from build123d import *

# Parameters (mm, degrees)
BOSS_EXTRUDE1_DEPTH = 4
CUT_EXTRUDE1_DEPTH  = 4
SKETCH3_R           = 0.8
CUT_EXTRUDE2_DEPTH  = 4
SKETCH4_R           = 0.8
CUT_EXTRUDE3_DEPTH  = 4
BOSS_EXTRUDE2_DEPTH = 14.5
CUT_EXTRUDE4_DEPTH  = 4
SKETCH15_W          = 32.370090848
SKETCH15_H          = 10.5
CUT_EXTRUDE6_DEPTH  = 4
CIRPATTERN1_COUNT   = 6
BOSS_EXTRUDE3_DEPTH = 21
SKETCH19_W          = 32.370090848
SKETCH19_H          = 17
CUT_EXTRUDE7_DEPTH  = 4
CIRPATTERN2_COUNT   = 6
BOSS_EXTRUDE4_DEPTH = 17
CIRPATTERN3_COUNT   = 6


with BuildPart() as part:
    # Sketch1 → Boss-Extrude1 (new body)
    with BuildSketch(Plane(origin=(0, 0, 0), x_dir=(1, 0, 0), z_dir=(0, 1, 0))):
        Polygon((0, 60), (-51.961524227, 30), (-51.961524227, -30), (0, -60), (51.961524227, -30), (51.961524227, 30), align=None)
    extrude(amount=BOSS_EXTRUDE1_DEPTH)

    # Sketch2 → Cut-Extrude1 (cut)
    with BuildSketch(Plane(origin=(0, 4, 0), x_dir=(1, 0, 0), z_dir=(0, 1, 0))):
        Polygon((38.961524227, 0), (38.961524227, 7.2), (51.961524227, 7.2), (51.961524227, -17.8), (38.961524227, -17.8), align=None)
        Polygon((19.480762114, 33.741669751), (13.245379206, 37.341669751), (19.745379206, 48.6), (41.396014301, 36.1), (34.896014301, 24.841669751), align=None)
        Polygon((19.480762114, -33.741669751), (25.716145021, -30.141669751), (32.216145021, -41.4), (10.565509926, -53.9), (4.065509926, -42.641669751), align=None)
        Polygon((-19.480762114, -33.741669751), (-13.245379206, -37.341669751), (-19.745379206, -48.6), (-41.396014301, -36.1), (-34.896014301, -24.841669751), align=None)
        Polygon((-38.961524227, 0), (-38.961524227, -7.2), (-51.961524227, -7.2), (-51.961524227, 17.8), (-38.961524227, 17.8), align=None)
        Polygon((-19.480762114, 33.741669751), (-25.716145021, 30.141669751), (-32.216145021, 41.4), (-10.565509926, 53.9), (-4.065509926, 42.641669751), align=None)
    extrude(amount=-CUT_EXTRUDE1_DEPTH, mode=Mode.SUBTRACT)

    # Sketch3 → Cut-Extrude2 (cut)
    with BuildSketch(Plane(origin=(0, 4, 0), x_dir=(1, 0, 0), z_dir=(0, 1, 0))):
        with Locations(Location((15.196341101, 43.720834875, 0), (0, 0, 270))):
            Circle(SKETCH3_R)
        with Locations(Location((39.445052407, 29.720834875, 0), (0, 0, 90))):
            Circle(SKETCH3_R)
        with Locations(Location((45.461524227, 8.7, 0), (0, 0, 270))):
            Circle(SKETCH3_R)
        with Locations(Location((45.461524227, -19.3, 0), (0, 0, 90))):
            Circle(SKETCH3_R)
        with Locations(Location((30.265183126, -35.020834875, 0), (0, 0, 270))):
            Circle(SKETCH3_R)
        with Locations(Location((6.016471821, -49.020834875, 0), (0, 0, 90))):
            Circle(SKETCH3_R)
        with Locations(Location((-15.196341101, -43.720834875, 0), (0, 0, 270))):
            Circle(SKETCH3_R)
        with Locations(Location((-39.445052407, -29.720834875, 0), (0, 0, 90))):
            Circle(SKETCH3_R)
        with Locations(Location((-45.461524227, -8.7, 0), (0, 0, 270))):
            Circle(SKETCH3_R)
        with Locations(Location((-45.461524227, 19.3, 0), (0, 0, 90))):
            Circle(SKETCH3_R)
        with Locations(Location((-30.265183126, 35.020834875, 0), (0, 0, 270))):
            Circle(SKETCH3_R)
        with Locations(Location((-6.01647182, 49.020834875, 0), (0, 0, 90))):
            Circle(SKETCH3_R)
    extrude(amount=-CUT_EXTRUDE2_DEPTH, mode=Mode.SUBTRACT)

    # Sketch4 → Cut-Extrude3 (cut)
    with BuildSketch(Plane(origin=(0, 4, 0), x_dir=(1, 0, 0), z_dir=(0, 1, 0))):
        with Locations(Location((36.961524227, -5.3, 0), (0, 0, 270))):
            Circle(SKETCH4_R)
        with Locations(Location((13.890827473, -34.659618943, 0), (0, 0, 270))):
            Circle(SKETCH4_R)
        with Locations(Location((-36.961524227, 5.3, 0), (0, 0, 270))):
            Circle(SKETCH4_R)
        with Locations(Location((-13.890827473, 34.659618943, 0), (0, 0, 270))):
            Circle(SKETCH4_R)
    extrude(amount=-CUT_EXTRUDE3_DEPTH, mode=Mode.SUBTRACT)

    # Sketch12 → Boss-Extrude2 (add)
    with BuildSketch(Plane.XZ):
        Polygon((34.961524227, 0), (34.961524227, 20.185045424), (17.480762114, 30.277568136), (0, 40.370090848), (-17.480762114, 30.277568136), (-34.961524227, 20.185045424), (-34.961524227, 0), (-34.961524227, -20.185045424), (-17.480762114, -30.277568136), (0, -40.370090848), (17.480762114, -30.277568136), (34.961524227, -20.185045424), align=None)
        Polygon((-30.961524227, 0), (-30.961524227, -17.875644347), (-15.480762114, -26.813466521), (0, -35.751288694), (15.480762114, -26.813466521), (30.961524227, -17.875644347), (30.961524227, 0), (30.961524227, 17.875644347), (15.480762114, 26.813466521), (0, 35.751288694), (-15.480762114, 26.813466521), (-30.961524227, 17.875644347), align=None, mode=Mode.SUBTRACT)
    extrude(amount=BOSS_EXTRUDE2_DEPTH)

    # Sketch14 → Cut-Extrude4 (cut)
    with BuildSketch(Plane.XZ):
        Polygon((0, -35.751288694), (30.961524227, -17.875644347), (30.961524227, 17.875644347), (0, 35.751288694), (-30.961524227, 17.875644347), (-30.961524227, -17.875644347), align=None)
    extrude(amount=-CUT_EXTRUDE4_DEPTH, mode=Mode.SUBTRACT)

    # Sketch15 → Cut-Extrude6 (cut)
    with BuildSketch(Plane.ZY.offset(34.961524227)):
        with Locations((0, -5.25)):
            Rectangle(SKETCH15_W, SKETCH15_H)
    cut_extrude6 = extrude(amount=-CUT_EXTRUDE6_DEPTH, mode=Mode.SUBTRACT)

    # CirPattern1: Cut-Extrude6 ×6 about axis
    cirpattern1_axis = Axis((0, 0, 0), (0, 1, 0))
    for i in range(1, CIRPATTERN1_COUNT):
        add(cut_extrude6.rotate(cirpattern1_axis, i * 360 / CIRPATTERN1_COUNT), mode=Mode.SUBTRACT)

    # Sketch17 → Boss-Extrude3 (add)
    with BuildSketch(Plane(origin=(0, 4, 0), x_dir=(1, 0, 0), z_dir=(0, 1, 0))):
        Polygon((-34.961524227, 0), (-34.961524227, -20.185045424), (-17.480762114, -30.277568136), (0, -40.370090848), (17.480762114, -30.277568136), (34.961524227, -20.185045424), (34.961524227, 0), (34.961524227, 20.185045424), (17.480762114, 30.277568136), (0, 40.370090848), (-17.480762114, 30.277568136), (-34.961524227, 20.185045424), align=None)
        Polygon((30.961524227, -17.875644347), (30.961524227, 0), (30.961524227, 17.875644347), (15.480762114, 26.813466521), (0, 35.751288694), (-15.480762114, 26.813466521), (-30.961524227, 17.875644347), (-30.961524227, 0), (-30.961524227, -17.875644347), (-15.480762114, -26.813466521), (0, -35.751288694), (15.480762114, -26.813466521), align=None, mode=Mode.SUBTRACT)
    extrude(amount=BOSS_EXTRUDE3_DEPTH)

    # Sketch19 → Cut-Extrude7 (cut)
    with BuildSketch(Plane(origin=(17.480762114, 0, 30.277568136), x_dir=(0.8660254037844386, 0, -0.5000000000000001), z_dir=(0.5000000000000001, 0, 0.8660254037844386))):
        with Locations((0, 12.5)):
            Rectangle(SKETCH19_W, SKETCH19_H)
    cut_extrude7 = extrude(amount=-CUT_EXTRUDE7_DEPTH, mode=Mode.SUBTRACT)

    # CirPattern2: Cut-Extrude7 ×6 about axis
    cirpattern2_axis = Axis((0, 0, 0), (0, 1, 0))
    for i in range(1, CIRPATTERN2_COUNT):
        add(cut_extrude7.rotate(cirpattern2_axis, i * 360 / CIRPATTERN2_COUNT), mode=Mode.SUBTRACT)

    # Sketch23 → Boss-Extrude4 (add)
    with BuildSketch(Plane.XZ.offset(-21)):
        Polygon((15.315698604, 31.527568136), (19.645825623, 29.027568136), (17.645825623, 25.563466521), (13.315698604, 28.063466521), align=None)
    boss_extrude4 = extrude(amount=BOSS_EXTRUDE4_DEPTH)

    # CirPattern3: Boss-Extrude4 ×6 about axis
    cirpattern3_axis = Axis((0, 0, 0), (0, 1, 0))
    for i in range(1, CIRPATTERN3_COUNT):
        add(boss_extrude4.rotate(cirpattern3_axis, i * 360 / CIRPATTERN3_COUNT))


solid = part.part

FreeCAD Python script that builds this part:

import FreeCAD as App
import Part
import Sketcher

V = App.Vector
Q = App.Units.Quantity


def add_polygon(sketch, points):
    """Adds a closed chain of lines whose ends are joined by coincident constraints."""
    first, n = sketch.GeometryCount, len(points)
    for a, b in zip(points, points[1:] + points[:1]):
        sketch.addGeometry(Part.LineSegment(App.Vector(*a, 0), App.Vector(*b, 0)), False)
    for i in range(n):
        sketch.addConstraint(Sketcher.Constraint("Coincident", first + i, 2, first + (i + 1) % n, 1))

doc = App.newDocument("Part")
body = doc.addObject("PartDesign::Body", "Body")

# Sketch on XZ plane
sketch1 = body.newObject("Sketcher::SketchObject", "Sketch")
sketch1.AttachmentSupport = (doc.getObject("XZ_Plane"), [""])
sketch1.MapMode = "FlatFace"
add_polygon(sketch1, [(0, -60), (-52, -30), (-52, 30), (0, 60), (52, 30), (52, -30)])  # lines 0-5
sketch1.addConstraint([
    Sketcher.Constraint("Vertical", 1),
    Sketcher.Constraint("Vertical", 4),
    Sketcher.Constraint("Symmetric", 0, 2, 3, 2, -1, 1),
    Sketcher.Constraint("Symmetric", 2, 2, 5, 2, -1, 1),
    Sketcher.Constraint("PointOnObject", 2, 2, -2),
    Sketcher.Constraint("Parallel", 2, 5),
    Sketcher.Constraint("Horizontal", 1, 2, 3, 2),
    Sketcher.Constraint("DistanceY", 1, 1, 1, 2, Q("60 mm")),
    Sketcher.Constraint("Angle", 0, Q("150 deg")),
    Sketcher.Constraint("Distance", 0, Q("60 mm")),
])
pad1 = body.newObject("PartDesign::Pad", "Pad")
pad1.Profile = sketch1
pad1.Length = 4
pad1.Reversed = True

# Sketch on XZ plane
sketch2 = body.newObject("Sketcher::SketchObject", "Sketch001")
sketch2.AttachmentSupport = (doc.getObject("XZ_Plane"), [""])
sketch2.MapMode = "FlatFace"
sketch2.AttachmentOffset = App.Placement(V(0, 0, -4), App.Rotation())
add_polygon(sketch2, [(39, -7), (39, 18), (52, 18), (52, -7)])  # lines 0-3
add_polygon(sketch2, [(13, -37), (19, -34), (35, -25), (41, -36), (20, -49)])  # lines 4-8
add_polygon(sketch2, [(26, 30), (19, 34), (4, 43), (11, 54), (32, 41)])  # lines 9-13
add_polygon(sketch2, [(-13, 37), (-19, 34), (-35, 25), (-41, 36), (-20, 49)])  # lines 14-18
add_polygon(sketch2, [(-39, 7), (-39, -18), (-52, -18), (-52, 7)])  # lines 19-22
add_polygon(sketch2, [(-26, -30), (-19, -34), (-4, -43), (-11, -54), (-32, -41)])  # lines 23-27
sketch2.addConstraint([
    Sketcher.Constraint("Vertical", 0),
    Sketcher.Constraint("Horizontal", 1),
    Sketcher.Constraint("Vertical", 2),
    Sketcher.Constraint("Horizontal", 3),
    Sketcher.Constraint("Vertical", 19),
    Sketcher.Constraint("Horizontal", 20),
    Sketcher.Constraint("Vertical", 21),
    Sketcher.Constraint("Horizontal", 22),
    Sketcher.Constraint("Symmetric", 4, 2, 14, 2, -1, 1),
    Sketcher.Constraint("Symmetric", 5, 2, 15, 2, -1, 1),
    Sketcher.Constraint("Symmetric", 6, 2, 16, 2, -1, 1),
    Sketcher.Constraint("Symmetric", 7, 2, 17, 2, -1, 1),
    Sketcher.Constraint("Symmetric", 8, 2, 18, 2, -1, 1),
    Sketcher.Constraint("Symmetric", 0, 2, 19, 2, -1, 1),
    Sketcher.Constraint("Symmetric", 2, 2, 21, 2, -1, 1),
    Sketcher.Constraint("Symmetric", 9, 2, 23, 2, -1, 1),
    Sketcher.Constraint("Symmetric", 10, 2, 24, 2, -1, 1),
    Sketcher.Constraint("Symmetric", 11, 2, 25, 2, -1, 1),
    Sketcher.Constraint("Symmetric", 12, 2, 26, 2, -1, 1),
    Sketcher.Constraint("Symmetric", 13, 2, 27, 2, -1, 1),
    Sketcher.Constraint("Symmetric", 9, 2, 14, 2, -2),
    Sketcher.Constraint("Parallel", 4, 5),
    Sketcher.Constraint("Perpendicular", 5, 6),
    Sketcher.Constraint("Perpendicular", 6, 7),
    Sketcher.Constraint("Perpendicular", 7, 8),
    Sketcher.Constraint("Parallel", 9, 10),
    Sketcher.Constraint("Perpendicular", 10, 11),
    Sketcher.Constraint("Perpendicular", 11, 12),
    Sketcher.Constraint("Perpendicular", 12, 13),
    Sketcher.Constraint("Equal", 4, 9),
    Sketcher.Constraint("Equal", 5, 10),
    Sketcher.Constraint("Equal", 8, 11),
    Sketcher.Constraint("DistanceX", 1, 1, 1, 2, Q("13 mm")),
    Sketcher.Constraint("DistanceY", 0, 1, 0, 2, Q("25 mm")),
    Sketcher.Constraint("Angle", 4, Q("30 deg")),
    Sketcher.Constraint("Angle", 9, Q("150 deg")),
    Sketcher.Constraint("Distance", 6, Q("13 mm")),
    Sketcher.Constraint("Distance", 7, Q("25 mm")),
    Sketcher.Constraint("Distance", 4, Q("7.2 mm")),
    Sketcher.Constraint("DistanceY", -1, 1, 0, 2, Q("17.8 mm")),
    Sketcher.Constraint("DistanceY", 6, 2, -1, 1, Q("36.1 mm")),
    Sketcher.Constraint("DistanceX", -1, 1, 7, 2, Q("19.745379 mm")),
    Sketcher.Constraint("DistanceX", 5, 2, 3, 2, Q("4.06551 mm")),
])
pocket1 = body.newObject("PartDesign::Pocket", "Pocket")
pocket1.Profile = sketch2
pocket1.Length = 4
pocket1.Reversed = True

# Sketch on XZ plane
sketch3 = body.newObject("Sketcher::SketchObject", "Sketch002")
sketch3.AttachmentSupport = (doc.getObject("XZ_Plane"), [""])
sketch3.MapMode = "FlatFace"
sketch3.AttachmentOffset = App.Placement(V(0, 0, -4), App.Rotation())
sketch3.addGeometry([
    Part.Circle(V(15.2, -43.7, 0), V(0, 0, 1), 0.8),  # 0
    Part.Circle(V(39.4, -29.7, 0), V(0, 0, 1), 0.8),  # 1
    Part.Circle(V(45.5, -8.7, 0), V(0, 0, 1), 0.8),  # 2
    Part.Circle(V(45.5, 19.3, 0), V(0, 0, 1), 0.8),  # 3
    Part.Circle(V(30.3, 35, 0), V(0, 0, 1), 0.8),  # 4
    Part.Circle(V(6, 49, 0), V(0, 0, 1), 0.8),  # 5
    Part.Circle(V(-15.2, 43.7, 0), V(0, 0, 1), 0.8),  # 6
    Part.Circle(V(-39.4, 29.7, 0), V(0, 0, 1), 0.8),  # 7
    Part.Circle(V(-45.5, 8.7, 0), V(0, 0, 1), 0.8),  # 8
    Part.Circle(V(-45.5, -19.3, 0), V(0, 0, 1), 0.8),  # 9
    Part.Circle(V(-30.3, -35, 0), V(0, 0, 1), 0.8),  # 10
    Part.Circle(V(-6, -49, 0), V(0, 0, 1), 0.8),  # 11
], False)
sketch3.addConstraint([
    Sketcher.Constraint("Equal", 0, 1),
    Sketcher.Constraint("Equal", 1, 2),
    Sketcher.Constraint("Equal", 2, 3),
    Sketcher.Constraint("Equal", 3, 4),
    Sketcher.Constraint("Equal", 4, 5),
    Sketcher.Constraint("Equal", 5, 6),
    Sketcher.Constraint("Equal", 6, 7),
    Sketcher.Constraint("Equal", 7, 8),
    Sketcher.Constraint("Equal", 8, 9),
    Sketcher.Constraint("Equal", 9, 10),
    Sketcher.Constraint("Equal", 10, 11),
    Sketcher.Constraint("Symmetric", 0, 3, 6, 3, -1, 1),
    Sketcher.Constraint("Symmetric", 1, 3, 7, 3, -1, 1),
    Sketcher.Constraint("Symmetric", 2, 3, 8, 3, -1, 1),
    Sketcher.Constraint("Symmetric", 3, 3, 9, 3, -1, 1),
    Sketcher.Constraint("Symmetric", 4, 3, 10, 3, -1, 1),
    Sketcher.Constraint("Symmetric", 5, 3, 11, 3, -1, 1),
    Sketcher.Constraint("Vertical", 2, 3, 3, 3),
    Sketcher.Constraint("Diameter", 0, Q("1.6 mm")),
    Sketcher.Constraint("DistanceY", 0, 3, 1, 3, Q("14 mm")),
    Sketcher.Constraint("DistanceY", 2, 3, 3, 3, Q("28 mm")),
    Sketcher.Constraint("DistanceY", 4, 3, 5, 3, Q("14 mm")),
    Sketcher.Constraint("DistanceY", 2, 3, -1, 1, Q("8.7 mm")),
    Sketcher.Constraint("DistanceY", 6, 3, 5, 3, Q("5.3 mm")),
    Sketcher.Constraint("DistanceX", -1, 1, 0, 3, Q("15.196341 mm")),
    Sketcher.Constraint("DistanceX", -1, 1, 5, 3, Q("6.016472 mm")),
    Sketcher.Constraint("DistanceX", 0, 3, 1, 3, Q("24.248711 mm")),
    Sketcher.Constraint("DistanceX", 1, 3, 2, 3, Q("6.016472 mm")),
    Sketcher.Constraint("DistanceX", 4, 3, 3, 3, Q("15.196341 mm")),
    Sketcher.Constraint("DistanceY", 1, 3, 4, 3, Q("64.74167 mm")),
])
pocket2 = body.newObject("PartDesign::Pocket", "Pocket001")
pocket2.Profile = sketch3
pocket2.Length = 4
pocket2.Reversed = True

# Sketch on XZ plane
sketch4 = body.newObject("Sketcher::SketchObject", "Sketch003")
sketch4.AttachmentSupport = (doc.getObject("XZ_Plane"), [""])
sketch4.MapMode = "FlatFace"
sketch4.AttachmentOffset = App.Placement(V(0, 0, -4), App.Rotation())
sketch4.addGeometry([
    Part.Circle(V(37, 5.3, 0), V(0, 0, 1), 0.8),
    Part.Circle(V(13.9, 34.7, 0), V(0, 0, 1), 0.8),
    Part.Circle(V(-37, -5.3, 0), V(0, 0, 1), 0.8),
    Part.Circle(V(-13.9, -34.7, 0), V(0, 0, 1), 0.8),
], False)
sketch4.addConstraint([
    Sketcher.Constraint("Equal", 0, 1),
    Sketcher.Constraint("Equal", 1, 2),
    Sketcher.Constraint("Equal", 2, 3),
    Sketcher.Constraint("Symmetric", 0, 3, 2, 3, -1, 1),
    Sketcher.Constraint("Symmetric", 1, 3, 3, 3, -1, 1),
    Sketcher.Constraint("Diameter", 0, Q("1.6 mm")),
    Sketcher.Constraint("DistanceY", -1, 1, 0, 3, Q("5.3 mm")),
    Sketcher.Constraint("DistanceY", -1, 1, 1, 3, Q("34.659619 mm")),
    Sketcher.Constraint("DistanceX", 2, 3, 1, 3, Q("50.852352 mm")),
    Sketcher.Constraint("DistanceX", 2, 3, 0, 3, Q("73.923048 mm")),
])
pocket3 = body.newObject("PartDesign::Pocket", "Pocket002")
pocket3.Profile = sketch4
pocket3.Length = 4
pocket3.Reversed = True

# Sketch on XZ plane
sketch5 = body.newObject("Sketcher::SketchObject", "Sketch004")
sketch5.AttachmentSupport = (doc.getObject("XZ_Plane"), [""])
sketch5.MapMode = "FlatFace"
add_polygon(sketch5, [(35, 20), (17, 30), (0, 40), (-17, 30), (-35, 20), (-35, -20), (-17, -30), (0, -40), (17, -30), (35, -20)])  # lines 0-9
add_polygon(sketch5, [(-31, -18), (-31, 18), (-15, 27), (0, 36), (15, 27), (31, 18), (31, -18), (15, -27), (0, -36), (-15, -27)])  # lines 10-19
sketch5.addConstraint([
    Sketcher.Constraint("Vertical", 4),
    Sketcher.Constraint("Vertical", 9),
    Sketcher.Constraint("Vertical", 10),
    Sketcher.Constraint("Vertical", 15),
    Sketcher.Constraint("Symmetric", 0, 2, 5, 2, -1, 1),
    Sketcher.Constraint("Symmetric", 1, 2, 6, 2, -1, 1),
    Sketcher.Constraint("Symmetric", 2, 2, 7, 2, -1, 1),
    Sketcher.Constraint("Symmetric", 3, 2, 8, 2, -1, 1),
    Sketcher.Constraint("Symmetric", 10, 2, 15, 2, -1, 1),
    Sketcher.Constraint("Symmetric", 11, 2, 16, 2, -1, 1),
    Sketcher.Constraint("Symmetric", 12, 2, 17, 2, -1, 1),
    Sketcher.Constraint("Symmetric", 13, 2, 18, 2, -1, 1),
    Sketcher.Constraint("Symmetric", 0, 2, 2, 2, -2),
    Sketcher.Constraint("Symmetric", 11, 2, 13, 2, -2),
    Sketcher.Constraint("PointOnObject", 1, 2, -2),
    Sketcher.Constraint("PointOnObject", 12, 2, -2),
    Sketcher.Constraint("Parallel", 0, 1),
    Sketcher.Constraint("Parallel", 2, 3),
    Sketcher.Constraint("Parallel", 1, 5),
    Sketcher.Constraint("Parallel", 8, 11),
    Sketcher.Constraint("Parallel", 11, 12),
    Sketcher.Constraint("Parallel", 13, 14),
    Sketcher.Constraint("Parallel", 18, 19),
    Sketcher.Constraint("Equal", 0, 1),
    Sketcher.Constraint("Equal", 11, 12),
    Sketcher.Constraint("Angle", 0, Q("150 deg")),
    Sketcher.Constraint("DistanceX", 3, 2, 10, 2, Q("4 mm")),
    Sketcher.Constraint("DistanceY", 4, 2, 4, 1, Q("40.370091 mm")),
    Sketcher.Constraint("DistanceY", 10, 1, 10, 2, Q("35.751289 mm")),
    Sketcher.Constraint("DistanceY", -1, 1, 0, 2, Q("30.277568 mm")),
])
pad2 = body.newObject("PartDesign::Pad", "Pad001")
pad2.Profile = sketch5
pad2.Length = 14.5

# Sketch on XZ plane
sketch6 = body.newObject("Sketcher::SketchObject", "Sketch005")
sketch6.AttachmentSupport = (doc.getObject("XZ_Plane"), [""])
sketch6.MapMode = "FlatFace"
add_polygon(sketch6, [(0, -36), (31, -18), (31, 18), (0, 36), (-31, 18), (-31, -18)])  # lines 0-5
sketch6.addConstraint([
    Sketcher.Constraint("Vertical", 1),
    Sketcher.Constraint("Vertical", 4),
    Sketcher.Constraint("Symmetric", 0, 2, 3, 2, -1, 1),
    Sketcher.Constraint("Symmetric", 2, 2, 5, 2, -1, 1),
    Sketcher.Constraint("PointOnObject", 2, 2, -2),
    Sketcher.Constraint("Parallel", 2, 5),
    Sketcher.Constraint("Horizontal", 1, 2, 3, 2),
    Sketcher.Constraint("Angle", 0, Q("30 deg")),
    Sketcher.Constraint("DistanceY", 1, 1, 1, 2, Q("35.751289 mm")),
    Sketcher.Constraint("Distance", 0, Q("35.751289 mm")),
])
pocket4 = body.newObject("PartDesign::Pocket", "Pocket003")
pocket4.Profile = sketch6
pocket4.Length = 4

# Sketch on YZ plane
sketch7 = body.newObject("Sketcher::SketchObject", "Sketch006")
sketch7.AttachmentSupport = (doc.getObject("YZ_Plane"), [""])
sketch7.MapMode = "FlatFace"
sketch7.AttachmentOffset = App.Placement(V(0, 0, -34.961524), App.Rotation())
add_polygon(sketch7, [(0, -16), (-10, -16), (-10, 16), (0, 16)])  # lines 0-3
sketch7.addConstraint([
    Sketcher.Constraint("Horizontal", 0),
    Sketcher.Constraint("Vertical", 1),
    Sketcher.Constraint("Horizontal", 2),
    Sketcher.Constraint("Vertical", 3),
    Sketcher.Constraint("Symmetric", 2, 2, 3, 2, -1, 1),
    Sketcher.Constraint("DistanceX", 0, 2, 0, 1, Q("10.5 mm")),
    Sketcher.Constraint("DistanceY", 1, 1, 1, 2, Q("32.370091 mm")),
])
pocket5 = body.newObject("PartDesign::Pocket", "Pocket004")
pocket5.Profile = sketch7
pocket5.Length = 4
pocket5.Reversed = True
doc.recompute()

polarpattern = body.newObject("PartDesign::PolarPattern", "PolarPattern")
polarpattern.Originals = [pocket5]
polarpattern.Axis = (doc.getObject("Y_Axis"), [""])
polarpattern.Angle = 360
polarpattern.Occurrences = 6
body.Tip = polarpattern

# Sketch on XZ plane
sketch8 = body.newObject("Sketcher::SketchObject", "Sketch007")
sketch8.AttachmentSupport = (doc.getObject("XZ_Plane"), [""])
sketch8.MapMode = "FlatFace"
sketch8.AttachmentOffset = App.Placement(V(0, 0, -4), App.Rotation())
add_polygon(sketch8, [(-35, 20), (-17, 30), (0, 40), (17, 30), (35, 20), (35, -20), (17, -30), (0, -40), (-17, -30), (-35, -20)])  # lines 0-9
add_polygon(sketch8, [(31, -18), (31, 18), (15, 27), (0, 36), (-15, 27), (-31, 18), (-31, -18), (-15, -27), (0, -36), (15, -27)])  # lines 10-19
sketch8.addConstraint([
    Sketcher.Constraint("Vertical", 4),
    Sketcher.Constraint("Vertical", 9),
    Sketcher.Constraint("Vertical", 10),
    Sketcher.Constraint("Vertical", 15),
    Sketcher.Constraint("Symmetric", 0, 2, 5, 2, -1, 1),
    Sketcher.Constraint("Symmetric", 1, 2, 6, 2, -1, 1),
    Sketcher.Constraint("Symmetric", 2, 2, 7, 2, -1, 1),
    Sketcher.Constraint("Symmetric", 3, 2, 8, 2, -1, 1),
    Sketcher.Constraint("Symmetric", 10, 2, 15, 2, -1, 1),
    Sketcher.Constraint("Symmetric", 11, 2, 16, 2, -1, 1),
    Sketcher.Constraint("Symmetric", 12, 2, 17, 2, -1, 1),
    Sketcher.Constraint("Symmetric", 13, 2, 18, 2, -1, 1),
    Sketcher.Constraint("Symmetric", 0, 2, 2, 2, -2),
    Sketcher.Constraint("Symmetric", 11, 2, 13, 2, -2),
    Sketcher.Constraint("PointOnObject", 1, 2, -2),
    Sketcher.Constraint("PointOnObject", 12, 2, -2),
    Sketcher.Constraint("Parallel", 0, 1),
    Sketcher.Constraint("Parallel", 2, 3),
    Sketcher.Constraint("Parallel", 1, 5),
    Sketcher.Constraint("Parallel", 8, 11),
    Sketcher.Constraint("Parallel", 11, 12),
    Sketcher.Constraint("Parallel", 13, 14),
    Sketcher.Constraint("Parallel", 18, 19),
    Sketcher.Constraint("Equal", 0, 1),
    Sketcher.Constraint("Equal", 11, 12),
    Sketcher.Constraint("Angle", 0, Q("30 deg")),
    Sketcher.Constraint("DistanceX", 10, 2, 3, 2, Q("4 mm")),
    Sketcher.Constraint("DistanceY", 4, 2, 4, 1, Q("40.370091 mm")),
    Sketcher.Constraint("DistanceY", 10, 1, 10, 2, Q("35.751289 mm")),
    Sketcher.Constraint("DistanceY", -1, 1, 0, 2, Q("30.277568 mm")),
])
pad3 = body.newObject("PartDesign::Pad", "Pad002")
pad3.Profile = sketch8
pad3.Length = 21
pad3.Reversed = True

# Sketch on an angled plane
sketch9 = body.newObject("Sketcher::SketchObject", "Sketch008")
sketch9.Placement = App.Placement(V(17.480762, 0, 30.277568), App.Rotation(V(0.866025404, 0, -0.5), V(0, 1, 0), V(0.5, 0, 0.866025404), "ZXY"))
add_polygon(sketch9, [(-16, 21), (-16, 4), (16, 4), (16, 21)])  # lines 0-3
sketch9.addConstraint([
    Sketcher.Constraint("Vertical", 0),
    Sketcher.Constraint("Horizontal", 1),
    Sketcher.Constraint("Vertical", 2),
    Sketcher.Constraint("Horizontal", 3),
    Sketcher.Constraint("DistanceY", 0, 2, 0, 1, Q("17 mm")),
    Sketcher.Constraint("DistanceY", -1, 1, 0, 2, Q("4 mm")),
    Sketcher.Constraint("DistanceX", 1, 1, 1, 2, Q("32.370091 mm")),
    Sketcher.Constraint("DistanceX", 0, 2, -1, 1, Q("16.185045 mm")),
])
pocket6 = body.newObject("PartDesign::Pocket", "Pocket005")
pocket6.Profile = sketch9
pocket6.Length = 4
doc.recompute()

polarpattern2 = body.newObject("PartDesign::PolarPattern", "PolarPattern001")
polarpattern2.Originals = [pocket6]
polarpattern2.Axis = (doc.getObject("Y_Axis"), [""])
polarpattern2.Angle = 360
polarpattern2.Occurrences = 6
body.Tip = polarpattern2

# Sketch on XZ plane
sketch10 = body.newObject("Sketcher::SketchObject", "Sketch009")
sketch10.AttachmentSupport = (doc.getObject("XZ_Plane"), [""])
sketch10.MapMode = "FlatFace"
sketch10.AttachmentOffset = App.Placement(V(0, 0, -21), App.Rotation())
add_polygon(sketch10, [(19.6, 29), (15.3, 31.5), (13.3, 28.1), (17.6, 25.6)])  # lines 0-3
sketch10.addConstraint([
    Sketcher.Constraint("Perpendicular", 0, 1),
    Sketcher.Constraint("Perpendicular", 1, 2),
    Sketcher.Constraint("Perpendicular", 2, 3),
    Sketcher.Constraint("Angle", 0, Q("150 deg")),
    Sketcher.Constraint("Distance", 0, Q("5 mm")),
    Sketcher.Constraint("Distance", 1, Q("4 mm")),
    Sketcher.Constraint("DistanceX", -1, 1, 0, 2, Q("15.315699 mm")),
    Sketcher.Constraint("DistanceY", -1, 1, 0, 2, Q("31.527568 mm")),
])
pad4 = body.newObject("PartDesign::Pad", "Pad003")
pad4.Profile = sketch10
pad4.Length = 17
doc.recompute()

polarpattern3 = body.newObject("PartDesign::PolarPattern", "PolarPattern002")
polarpattern3.Originals = [pad4]
polarpattern3.Axis = (doc.getObject("Y_Axis"), [""])
polarpattern3.Angle = 360
polarpattern3.Occurrences = 6
body.Tip = polarpattern3

doc.recompute()
